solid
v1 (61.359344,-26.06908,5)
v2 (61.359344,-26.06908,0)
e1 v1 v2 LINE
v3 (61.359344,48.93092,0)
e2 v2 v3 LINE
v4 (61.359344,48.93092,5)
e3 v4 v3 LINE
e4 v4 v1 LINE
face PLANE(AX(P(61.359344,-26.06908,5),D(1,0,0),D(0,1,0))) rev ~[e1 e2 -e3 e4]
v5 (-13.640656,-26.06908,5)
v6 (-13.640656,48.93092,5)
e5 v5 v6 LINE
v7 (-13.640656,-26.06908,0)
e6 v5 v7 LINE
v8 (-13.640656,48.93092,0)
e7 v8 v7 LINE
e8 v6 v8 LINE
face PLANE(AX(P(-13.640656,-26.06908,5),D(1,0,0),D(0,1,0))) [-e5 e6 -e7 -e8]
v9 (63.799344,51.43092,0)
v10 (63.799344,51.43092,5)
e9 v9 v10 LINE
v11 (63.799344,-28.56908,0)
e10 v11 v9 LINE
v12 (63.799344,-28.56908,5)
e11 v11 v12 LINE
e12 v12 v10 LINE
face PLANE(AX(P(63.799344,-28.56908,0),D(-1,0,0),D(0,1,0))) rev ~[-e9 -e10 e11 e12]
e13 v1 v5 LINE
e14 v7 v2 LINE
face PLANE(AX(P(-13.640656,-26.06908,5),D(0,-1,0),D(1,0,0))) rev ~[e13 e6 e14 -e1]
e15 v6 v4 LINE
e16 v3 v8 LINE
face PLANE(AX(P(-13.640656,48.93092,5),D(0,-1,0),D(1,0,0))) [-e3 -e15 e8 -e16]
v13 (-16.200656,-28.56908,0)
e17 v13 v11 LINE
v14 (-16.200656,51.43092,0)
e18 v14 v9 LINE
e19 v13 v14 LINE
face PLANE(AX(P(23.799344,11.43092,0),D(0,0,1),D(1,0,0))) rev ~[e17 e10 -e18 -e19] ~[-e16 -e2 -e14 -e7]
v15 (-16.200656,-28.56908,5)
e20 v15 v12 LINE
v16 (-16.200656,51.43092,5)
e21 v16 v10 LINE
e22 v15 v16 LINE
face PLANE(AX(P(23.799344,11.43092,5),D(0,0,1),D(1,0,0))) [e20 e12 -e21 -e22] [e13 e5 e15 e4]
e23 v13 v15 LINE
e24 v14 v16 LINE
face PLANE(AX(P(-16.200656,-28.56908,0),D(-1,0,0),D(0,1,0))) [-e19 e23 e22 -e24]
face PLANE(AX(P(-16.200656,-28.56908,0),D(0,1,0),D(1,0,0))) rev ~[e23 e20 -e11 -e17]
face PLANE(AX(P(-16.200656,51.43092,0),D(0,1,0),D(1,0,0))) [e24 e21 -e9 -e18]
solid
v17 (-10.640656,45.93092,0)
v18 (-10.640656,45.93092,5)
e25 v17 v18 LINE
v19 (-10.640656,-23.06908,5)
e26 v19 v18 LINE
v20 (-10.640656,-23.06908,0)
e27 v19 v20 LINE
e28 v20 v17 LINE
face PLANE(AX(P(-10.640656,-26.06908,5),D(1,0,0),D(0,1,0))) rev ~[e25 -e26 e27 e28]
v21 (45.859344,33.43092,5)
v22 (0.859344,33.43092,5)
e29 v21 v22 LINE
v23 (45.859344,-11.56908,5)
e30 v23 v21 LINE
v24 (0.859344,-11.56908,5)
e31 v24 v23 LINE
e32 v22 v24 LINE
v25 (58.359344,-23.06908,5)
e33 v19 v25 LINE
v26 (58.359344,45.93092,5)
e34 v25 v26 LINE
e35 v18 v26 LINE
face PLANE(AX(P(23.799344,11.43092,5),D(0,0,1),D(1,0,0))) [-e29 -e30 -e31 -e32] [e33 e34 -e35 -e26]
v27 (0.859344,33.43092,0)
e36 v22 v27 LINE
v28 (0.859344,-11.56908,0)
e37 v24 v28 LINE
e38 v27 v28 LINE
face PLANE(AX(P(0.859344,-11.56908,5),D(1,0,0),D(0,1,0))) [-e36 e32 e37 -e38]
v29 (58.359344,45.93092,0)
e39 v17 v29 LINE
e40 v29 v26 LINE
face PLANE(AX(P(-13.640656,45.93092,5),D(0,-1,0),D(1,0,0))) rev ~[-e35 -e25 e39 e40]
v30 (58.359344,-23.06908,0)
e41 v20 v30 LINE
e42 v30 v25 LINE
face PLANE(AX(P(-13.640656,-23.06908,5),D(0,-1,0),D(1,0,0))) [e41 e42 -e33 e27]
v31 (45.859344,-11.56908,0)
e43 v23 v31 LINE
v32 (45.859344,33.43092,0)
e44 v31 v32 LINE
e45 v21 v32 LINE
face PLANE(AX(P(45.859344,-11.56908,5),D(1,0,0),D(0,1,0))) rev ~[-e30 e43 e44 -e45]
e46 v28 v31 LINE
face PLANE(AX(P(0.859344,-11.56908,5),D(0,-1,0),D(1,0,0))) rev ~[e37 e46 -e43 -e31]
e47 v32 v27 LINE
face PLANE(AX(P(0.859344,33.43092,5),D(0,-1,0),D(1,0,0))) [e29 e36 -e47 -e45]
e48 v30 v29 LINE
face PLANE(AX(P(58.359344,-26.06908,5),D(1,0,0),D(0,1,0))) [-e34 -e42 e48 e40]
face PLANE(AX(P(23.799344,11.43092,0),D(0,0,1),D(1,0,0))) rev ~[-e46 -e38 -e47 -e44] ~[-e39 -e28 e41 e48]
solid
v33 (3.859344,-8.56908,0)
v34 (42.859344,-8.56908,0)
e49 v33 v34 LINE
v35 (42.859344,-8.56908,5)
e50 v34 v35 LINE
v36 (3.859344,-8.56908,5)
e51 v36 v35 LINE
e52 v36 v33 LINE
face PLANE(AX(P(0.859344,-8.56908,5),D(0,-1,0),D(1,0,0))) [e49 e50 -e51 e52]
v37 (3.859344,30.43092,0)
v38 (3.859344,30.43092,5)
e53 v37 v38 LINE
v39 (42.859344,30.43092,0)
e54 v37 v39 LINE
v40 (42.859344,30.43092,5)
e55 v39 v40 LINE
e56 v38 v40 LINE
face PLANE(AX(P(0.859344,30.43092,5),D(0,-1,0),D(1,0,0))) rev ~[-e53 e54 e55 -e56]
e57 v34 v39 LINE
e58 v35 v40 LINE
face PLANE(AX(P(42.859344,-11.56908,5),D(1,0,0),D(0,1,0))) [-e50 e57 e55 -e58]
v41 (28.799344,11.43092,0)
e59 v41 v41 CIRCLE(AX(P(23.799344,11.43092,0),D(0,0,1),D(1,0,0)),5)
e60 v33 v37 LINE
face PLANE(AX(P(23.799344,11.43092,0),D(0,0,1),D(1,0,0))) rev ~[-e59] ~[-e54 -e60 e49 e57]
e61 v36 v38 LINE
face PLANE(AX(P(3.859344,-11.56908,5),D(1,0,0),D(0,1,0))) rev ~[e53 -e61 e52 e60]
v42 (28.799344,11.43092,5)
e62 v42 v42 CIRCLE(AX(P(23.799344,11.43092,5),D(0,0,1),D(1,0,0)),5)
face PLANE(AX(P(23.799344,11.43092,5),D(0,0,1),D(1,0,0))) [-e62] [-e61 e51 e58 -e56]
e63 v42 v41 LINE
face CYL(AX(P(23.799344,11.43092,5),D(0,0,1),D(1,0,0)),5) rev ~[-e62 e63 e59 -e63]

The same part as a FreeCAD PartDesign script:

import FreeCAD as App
import Part
import Sketcher

doc = App.newDocument("Part")
body = doc.addObject("PartDesign::Body", "Body")
body.AllowCompound = True

sketch1 = body.newObject("Sketcher::SketchObject", "Sketch")
sketch1.AttachmentSupport = (doc.getObject("XY_Plane"), [""])
sketch1.MapMode = "FlatFace"
sketch1.addGeometry([
    Part.LineSegment(App.Vector(-16, 51, 0), App.Vector(-16, -29, 0)),
    Part.LineSegment(App.Vector(-16, -29, 0), App.Vector(64, -29, 0)),
    Part.LineSegment(App.Vector(64, -29, 0), App.Vector(64, 51, 0)),
    Part.LineSegment(App.Vector(64, 51, 0), App.Vector(-16, 51, 0)),
], False)
sketch1.addConstraint([
    Sketcher.Constraint("Coincident", 0, 2, 1, 1),
    Sketcher.Constraint("Coincident", 1, 2, 2, 1),
    Sketcher.Constraint("Coincident", 2, 2, 3, 1),
    Sketcher.Constraint("Coincident", 3, 2, 0, 1),
    Sketcher.Constraint("Vertical", 0),
    Sketcher.Constraint("Horizontal", 1),
    Sketcher.Constraint("Vertical", 2),
    Sketcher.Constraint("Horizontal", 3),
    Sketcher.Constraint("Equal", 3, 0),
    Sketcher.Constraint("DistanceX", 1, 1, 1, 2, 80.0),
    Sketcher.Constraint("DistanceY", 0, 2, -1, 1, 28.56908),
    Sketcher.Constraint("DistanceX", 0, 2, -1, 1, 16.200656),
])
pad1 = body.newObject("PartDesign::Pad", "Pad")
pad1.Profile = sketch1
pad1.Length = 5

sketch2 = body.newObject("Sketcher::SketchObject", "Sketch001")
sketch2.AttachmentSupport = (doc.getObject("XY_Plane"), [""])
sketch2.MapMode = "FlatFace"
sketch2.AttachmentOffset = App.Placement(App.Vector(0, 0, 5), App.Rotation())
sketch2.addGeometry(Part.Circle(App.Vector(24, 11, 0), App.Vector(0, 0, 1), 5), False)
sketch2.addConstraint([
    Sketcher.Constraint("Diameter", 0, 10.0),
    Sketcher.Constraint("DistanceY", -1, 1, 0, 3, 11.43092),
    Sketcher.Constraint("DistanceX", -1, 1, 0, 3, 23.799344),
])
pocket1 = body.newObject("PartDesign::Pocket", "Pocket")
pocket1.Profile = sketch2
pocket1.Length = 5

sketch3 = body.newObject("Sketcher::SketchObject", "Sketch002")
sketch3.AttachmentSupport = (doc.getObject("XY_Plane"), [""])
sketch3.MapMode = "FlatFace"
sketch3.AttachmentOffset = App.Placement(App.Vector(0, 0, 5), App.Rotation())
sketch3.addGeometry([
    Part.LineSegment(App.Vector(-13.6, 48.9, 0), App.Vector(-13.6, 45.9, 0)),
    Part.LineSegment(App.Vector(-13.6, 45.9, 0), App.Vector(61.4, 45.9, 0)),
    Part.LineSegment(App.Vector(61.4, 45.9, 0), App.Vector(61.4, 48.9, 0)),
    Part.LineSegment(App.Vector(61.4, 48.9, 0), App.Vector(-13.6, 48.9, 0)),
], False)
sketch3.addConstraint([
    Sketcher.Constraint("Coincident", 0, 2, 1, 1),
    Sketcher.Constraint("Coincident", 1, 2, 2, 1),
    Sketcher.Constraint("Coincident", 2, 2, 3, 1),
    Sketcher.Constraint("Coincident", 3, 2, 0, 1),
    Sketcher.Constraint("Vertical", 0),
    Sketcher.Constraint("Horizontal", 1),
    Sketcher.Constraint("Vertical", 2),
    Sketcher.Constraint("Horizontal", 3),
    Sketcher.Constraint("DistanceX", 1, 1, 1, 2, 75.0),
    Sketcher.Constraint("DistanceY", 0, 2, 0, 1, 3.0),
    Sketcher.Constraint("DistanceY", -1, 1, 0, 2, 45.93092),
    Sketcher.Constraint("DistanceX", 0, 2, -1, 1, 13.640656),
])
pocket2 = body.newObject("PartDesign::Pocket", "Pocket001")
pocket2.Profile = sketch3
pocket2.Length = 20

sketch4 = body.newObject("Sketcher::SketchObject", "Sketch003")
sketch4.AttachmentSupport = (doc.getObject("XY_Plane"), [""])
sketch4.MapMode = "FlatFace"
sketch4.AttachmentOffset = App.Placement(App.Vector(0, 0, 5), App.Rotation())
sketch4.addGeometry([
    Part.LineSegment(App.Vector(-13.6, 48.9, 0), App.Vector(-13.6, -26.1, 0)),
    Part.LineSegment(App.Vector(-13.6, -26.1, 0), App.Vector(-10.6, -26.1, 0)),
    Part.LineSegment(App.Vector(-10.6, -26.1, 0), App.Vector(-10.6, 48.9, 0)),
    Part.LineSegment(App.Vector(-10.6, 48.9, 0), App.Vector(-13.6, 48.9, 0)),
], False)
sketch4.addConstraint([
    Sketcher.Constraint("Coincident", 0, 2, 1, 1),
    Sketcher.Constraint("Coincident", 1, 2, 2, 1),
    Sketcher.Constraint("Coincident", 2, 2, 3, 1),
    Sketcher.Constraint("Coincident", 3, 2, 0, 1),
    Sketcher.Constraint("Vertical", 0),
    Sketcher.Constraint("Horizontal", 1),
    Sketcher.Constraint("Vertical", 2),
    Sketcher.Constraint("Horizontal", 3),
    Sketcher.Constraint("DistanceX", 1, 1, 1, 2, 3.0),
    Sketcher.Constraint("DistanceY", 0, 2, 0, 1, 75.0),
    Sketcher.Constraint("DistanceY", 0, 2, -1, 1, 26.06908),
    Sketcher.Constraint("DistanceX", 0, 2, -1, 1, 13.640656),
])
pocket3 = body.newObject("PartDesign::Pocket", "Pocket002")
pocket3.Profile = sketch4
pocket3.Length = 25

sketch5 = body.newObject("Sketcher::SketchObject", "Sketch004")
sketch5.AttachmentSupport = (doc.getObject("XY_Plane"), [""])
sketch5.MapMode = "FlatFace"
sketch5.AttachmentOffset = App.Placement(App.Vector(0, 0, 5), App.Rotation())
sketch5.addGeometry([
    Part.LineSegment(App.Vector(-13.6, -23.1, 0), App.Vector(-13.6, -26.1, 0)),
    Part.LineSegment(App.Vector(-13.6, -26.1, 0), App.Vector(61.4, -26.1, 0)),
    Part.LineSegment(App.Vector(61.4, -26.1, 0), App.Vector(61.4, -23.1, 0)),
    Part.LineSegment(App.Vector(61.4, -23.1, 0), App.Vector(-13.6, -23.1, 0)),
], False)
sketch5.addConstraint([
    Sketcher.Constraint("Coincident", 0, 2, 1, 1),
    Sketcher.Constraint("Coincident", 1, 2, 2, 1),
    Sketcher.Constraint("Coincident", 2, 2, 3, 1),
    Sketcher.Constraint("Coincident", 3, 2, 0, 1),
    Sketcher.Constraint("Vertical", 0),
    Sketcher.Constraint("Horizontal", 1),
    Sketcher.Constraint("Vertical", 2),
    Sketcher.Constraint("Horizontal", 3),
    Sketcher.Constraint("DistanceX", 1, 1, 1, 2, 75.0),
    Sketcher.Constraint("DistanceY", 0, 2, 0, 1, 3.0),
    Sketcher.Constraint("DistanceY", 0, 2, -1, 1, 26.06908),
    Sketcher.Constraint("DistanceX", 0, 2, -1, 1, 13.640656),
])
pocket4 = body.newObject("PartDesign::Pocket", "Pocket003")
pocket4.Profile = sketch5
pocket4.Length = 25

sketch6 = body.newObject("Sketcher::SketchObject", "Sketch005")
sketch6.AttachmentSupport = (doc.getObject("XY_Plane"), [""])
sketch6.MapMode = "FlatFace"
sketch6.AttachmentOffset = App.Placement(App.Vector(0, 0, 5), App.Rotation())
sketch6.addGeometry([
    Part.LineSegment(App.Vector(58.4, 48.9, 0), App.Vector(58.4, -26.1, 0)),
    Part.LineSegment(App.Vector(58.4, -26.1, 0), App.Vector(61.4, -26.1, 0)),
    Part.LineSegment(App.Vector(61.4, -26.1, 0), App.Vector(61.4, 48.9, 0)),
    Part.LineSegment(App.Vector(61.4, 48.9, 0), App.Vector(58.4, 48.9, 0)),
], False)
sketch6.addConstraint([
    Sketcher.Constraint("Coincident", 0, 2, 1, 1),
    Sketcher.Constraint("Coincident", 1, 2, 2, 1),
    Sketcher.Constraint("Coincident", 2, 2, 3, 1),
    Sketcher.Constraint("Coincident", 3, 2, 0, 1),
    Sketcher.Constraint("Vertical", 0),
    Sketcher.Constraint("Horizontal", 1),
    Sketcher.Constraint("Vertical", 2),
    Sketcher.Constraint("Horizontal", 3),
    Sketcher.Constraint("DistanceX", 1, 1, 1, 2, 3.0),
    Sketcher.Constraint("DistanceY", 0, 2, 0, 1, 75.0),
    Sketcher.Constraint("DistanceY", 0, 2, -1, 1, 26.06908),
    Sketcher.Constraint("DistanceX", -1, 1, 0, 2, 58.359344),
])
pocket5 = body.newObject("PartDesign::Pocket", "Pocket004")
pocket5.Profile = sketch6
pocket5.Length = 25

sketch7 = body.newObject("Sketcher::SketchObject", "Sketch006")
sketch7.AttachmentSupport = (doc.getObject("XY_Plane"), [""])
sketch7.MapMode = "FlatFace"
sketch7.AttachmentOffset = App.Placement(App.Vector(0, 0, 5), App.Rotation())
sketch7.addGeometry([
    Part.LineSegment(App.Vector(0.9, 33.4, 0), App.Vector(0.9, 30.4, 0)),
    Part.LineSegment(App.Vector(0.9, 30.4, 0), App.Vector(45.9, 30.4, 0)),
    Part.LineSegment(App.Vector(45.9, 30.4, 0), App.Vector(45.9, 33.4, 0)),
    Part.LineSegment(App.Vector(45.9, 33.4, 0), App.Vector(0.9, 33.4, 0)),
], False)
sketch7.addConstraint([
    Sketcher.Constraint("Coincident", 0, 2, 1, 1),
    Sketcher.Constraint("Coincident", 1, 2, 2, 1),
    Sketcher.Constraint("Coincident", 2, 2, 3, 1),
    Sketcher.Constraint("Coincident", 3, 2, 0, 1),
    Sketcher.Constraint("Vertical", 0),
    Sketcher.Constraint("Horizontal", 1),
    Sketcher.Constraint("Vertical", 2),
    Sketcher.Constraint("Horizontal", 3),
    Sketcher.Constraint("DistanceX", 1, 1, 1, 2, 45.0),
    Sketcher.Constraint("DistanceY", 0, 2, 0, 1, 3.0),
    Sketcher.Constraint("DistanceY", -1, 1, 0, 2, 30.43092),
    Sketcher.Constraint("DistanceX", -1, 1, 0, 2, 0.859344),
])
pocket6 = body.newObject("PartDesign::Pocket", "Pocket005")
pocket6.Profile = sketch7
pocket6.Length = 25

sketch8 = body.newObject("Sketcher::SketchObject", "Sketch007")
sketch8.AttachmentSupport = (doc.getObject("XY_Plane"), [""])
sketch8.MapMode = "FlatFace"
sketch8.AttachmentOffset = App.Placement(App.Vector(0, 0, 5), App.Rotation())
sketch8.addGeometry([
    Part.LineSegment(App.Vector(0.9, 33.4, 0), App.Vector(0.9, -11.6, 0)),
    Part.LineSegment(App.Vector(0.9, -11.6, 0), App.Vector(3.9, -11.6, 0)),
    Part.LineSegment(App.Vector(3.9, -11.6, 0), App.Vector(3.9, 33.4, 0)),
    Part.LineSegment(App.Vector(3.9, 33.4, 0), App.Vector(0.9, 33.4, 0)),
], False)
sketch8.addConstraint([
    Sketcher.Constraint("Coincident", 0, 2, 1, 1),
    Sketcher.Constraint("Coincident", 1, 2, 2, 1),
    Sketcher.Constraint("Coincident", 2, 2, 3, 1),
    Sketcher.Constraint("Coincident", 3, 2, 0, 1),
    Sketcher.Constraint("Vertical", 0),
    Sketcher.Constraint("Horizontal", 1),
    Sketcher.Constraint("Vertical", 2),
    Sketcher.Constraint("Horizontal", 3),
    Sketcher.Constraint("DistanceX", 1, 1, 1, 2, 3.0),
    Sketcher.Constraint("DistanceY", 0, 2, 0, 1, 45.0),
    Sketcher.Constraint("DistanceY", 0, 2, -1, 1, 11.56908),
    Sketcher.Constraint("DistanceX", -1, 1, 0, 2, 0.859344),
])
pocket7 = body.newObject("PartDesign::Pocket", "Pocket006")
pocket7.Profile = sketch8
pocket7.Length = 25

sketch9 = body.newObject("Sketcher::SketchObject", "Sketch008")
sketch9.AttachmentSupport = (doc.getObject("XY_Plane"), [""])
sketch9.MapMode = "FlatFace"
sketch9.AttachmentOffset = App.Placement(App.Vector(0, 0, 5), App.Rotation())
sketch9.addGeometry([
    Part.LineSegment(App.Vector(0.9, -8.6, 0), App.Vector(0.9, -11.6, 0)),
    Part.LineSegment(App.Vector(0.9, -11.6, 0), App.Vector(45.9, -11.6, 0)),
    Part.LineSegment(App.Vector(45.9, -11.6, 0), App.Vector(45.9, -8.6, 0)),
    Part.LineSegment(App.Vector(45.9, -8.6, 0), App.Vector(0.9, -8.6, 0)),
], False)
sketch9.addConstraint([
    Sketcher.Constraint("Coincident", 0, 2, 1, 1),
    Sketcher.Constraint("Coincident", 1, 2, 2, 1),
    Sketcher.Constraint("Coincident", 2, 2, 3, 1),
    Sketcher.Constraint("Coincident", 3, 2, 0, 1),
    Sketcher.Constraint("Vertical", 0),
    Sketcher.Constraint("Horizontal", 1),
    Sketcher.Constraint("Vertical", 2),
    Sketcher.Constraint("Horizontal", 3),
    Sketcher.Constraint("DistanceX", 1, 1, 1, 2, 45.0),
    Sketcher.Constraint("DistanceY", 0, 2, 0, 1, 3.0),
    Sketcher.Constraint("DistanceY", 0, 2, -1, 1, 11.56908),
    Sketcher.Constraint("DistanceX", -1, 1, 0, 2, 0.859344),
])
pocket8 = body.newObject("PartDesign::Pocket", "Pocket007")
pocket8.Profile = sketch9
pocket8.Length = 25

sketch10 = body.newObject("Sketcher::SketchObject", "Sketch009")
sketch10.AttachmentSupport = (doc.getObject("XY_Plane"), [""])
sketch10.MapMode = "FlatFace"
sketch10.AttachmentOffset = App.Placement(App.Vector(0, 0, 5), App.Rotation())
sketch10.addGeometry([
    Part.LineSegment(App.Vector(42.9, 33.4, 0), App.Vector(42.9, -11.6, 0)),
    Part.LineSegment(App.Vector(42.9, -11.6, 0), App.Vector(45.9, -11.6, 0)),
    Part.LineSegment(App.Vector(45.9, -11.6, 0), App.Vector(45.9, 33.4, 0)),
    Part.LineSegment(App.Vector(45.9, 33.4, 0), App.Vector(42.9, 33.4, 0)),
], False)
sketch10.addConstraint([
    Sketcher.Constraint("Coincident", 0, 2, 1, 1),
    Sketcher.Constraint("Coincident", 1, 2, 2, 1),
    Sketcher.Constraint("Coincident", 2, 2, 3, 1),
    Sketcher.Constraint("Coincident", 3, 2, 0, 1),
    Sketcher.Constraint("Vertical", 0),
    Sketcher.Constraint("Horizontal", 1),
    Sketcher.Constraint("Vertical", 2),
    Sketcher.Constraint("Horizontal", 3),
    Sketcher.Constraint("DistanceX", 1, 1, 1, 2, 3.0),
    Sketcher.Constraint("DistanceY", 0, 2, 0, 1, 45.0),
    Sketcher.Constraint("DistanceY", 0, 2, -1, 1, 11.56908),
    Sketcher.Constraint("DistanceX", -1, 1, 0, 2, 42.859344),
])
pocket9 = body.newObject("PartDesign::Pocket", "Pocket008")
pocket9.Profile = sketch10
pocket9.Length = 25

doc.recompute()
